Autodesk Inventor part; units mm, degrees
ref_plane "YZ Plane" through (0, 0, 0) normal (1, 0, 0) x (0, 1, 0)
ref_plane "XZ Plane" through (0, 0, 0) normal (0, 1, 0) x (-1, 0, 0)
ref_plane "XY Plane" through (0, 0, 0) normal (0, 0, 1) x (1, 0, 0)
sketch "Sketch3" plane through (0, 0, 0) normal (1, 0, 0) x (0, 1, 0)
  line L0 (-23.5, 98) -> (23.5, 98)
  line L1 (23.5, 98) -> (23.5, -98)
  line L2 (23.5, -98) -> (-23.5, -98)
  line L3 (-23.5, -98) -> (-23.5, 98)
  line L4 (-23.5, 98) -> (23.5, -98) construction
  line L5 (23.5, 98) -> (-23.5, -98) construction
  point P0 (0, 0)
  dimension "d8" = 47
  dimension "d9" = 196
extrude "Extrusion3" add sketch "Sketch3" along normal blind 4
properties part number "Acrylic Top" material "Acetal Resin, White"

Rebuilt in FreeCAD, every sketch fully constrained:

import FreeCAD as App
import Part
import Sketcher

V = App.Vector
Q = App.Units.Quantity


def add_polygon(sketch, points):
    """Adds a closed chain of lines whose ends are joined by coincident constraints."""
    first, n = sketch.GeometryCount, len(points)
    for a, b in zip(points, points[1:] + points[:1]):
        sketch.addGeometry(Part.LineSegment(App.Vector(*a, 0), App.Vector(*b, 0)), False)
    for i in range(n):
        sketch.addConstraint(Sketcher.Constraint("Coincident", first + i, 2, first + (i + 1) % n, 1))

doc = App.newDocument("Part")
body = doc.addObject("PartDesign::Body", "Body")

# Sketch on YZ plane
sketch1 = doc.addObject("Sketcher::SketchObject", "Sketch")
body.addObject(sketch1)
sketch1.AttachmentSupport = (doc.YZ_Plane, [""])
sketch1.MapMode = "FlatFace"
add_polygon(sketch1, [(23.5, 98), (-23.5, 98), (-23.5, -98), (23.5, -98)])  # lines 0-3
sketch1.addConstraint(Sketcher.Constraint("Horizontal", 0))
sketch1.addConstraint(Sketcher.Constraint("Vertical", 1))
sketch1.addConstraint(Sketcher.Constraint("Horizontal", 2))
sketch1.addConstraint(Sketcher.Constraint("Vertical", 3))
sketch1.addConstraint(Sketcher.Constraint("Symmetric", 0, 2, 2, 2, -1, 1))
sketch1.addConstraint(Sketcher.Constraint("DistanceX", 0, 2, 0, 1, Q("47 mm")))
sketch1.addConstraint(Sketcher.Constraint("DistanceY", 1, 2, 1, 1, Q("196 mm")))
pad1 = doc.addObject("PartDesign::Pad", "Pad")
body.addObject(pad1)
pad1.Profile = sketch1
pad1.Length = 4

doc.recompute()
